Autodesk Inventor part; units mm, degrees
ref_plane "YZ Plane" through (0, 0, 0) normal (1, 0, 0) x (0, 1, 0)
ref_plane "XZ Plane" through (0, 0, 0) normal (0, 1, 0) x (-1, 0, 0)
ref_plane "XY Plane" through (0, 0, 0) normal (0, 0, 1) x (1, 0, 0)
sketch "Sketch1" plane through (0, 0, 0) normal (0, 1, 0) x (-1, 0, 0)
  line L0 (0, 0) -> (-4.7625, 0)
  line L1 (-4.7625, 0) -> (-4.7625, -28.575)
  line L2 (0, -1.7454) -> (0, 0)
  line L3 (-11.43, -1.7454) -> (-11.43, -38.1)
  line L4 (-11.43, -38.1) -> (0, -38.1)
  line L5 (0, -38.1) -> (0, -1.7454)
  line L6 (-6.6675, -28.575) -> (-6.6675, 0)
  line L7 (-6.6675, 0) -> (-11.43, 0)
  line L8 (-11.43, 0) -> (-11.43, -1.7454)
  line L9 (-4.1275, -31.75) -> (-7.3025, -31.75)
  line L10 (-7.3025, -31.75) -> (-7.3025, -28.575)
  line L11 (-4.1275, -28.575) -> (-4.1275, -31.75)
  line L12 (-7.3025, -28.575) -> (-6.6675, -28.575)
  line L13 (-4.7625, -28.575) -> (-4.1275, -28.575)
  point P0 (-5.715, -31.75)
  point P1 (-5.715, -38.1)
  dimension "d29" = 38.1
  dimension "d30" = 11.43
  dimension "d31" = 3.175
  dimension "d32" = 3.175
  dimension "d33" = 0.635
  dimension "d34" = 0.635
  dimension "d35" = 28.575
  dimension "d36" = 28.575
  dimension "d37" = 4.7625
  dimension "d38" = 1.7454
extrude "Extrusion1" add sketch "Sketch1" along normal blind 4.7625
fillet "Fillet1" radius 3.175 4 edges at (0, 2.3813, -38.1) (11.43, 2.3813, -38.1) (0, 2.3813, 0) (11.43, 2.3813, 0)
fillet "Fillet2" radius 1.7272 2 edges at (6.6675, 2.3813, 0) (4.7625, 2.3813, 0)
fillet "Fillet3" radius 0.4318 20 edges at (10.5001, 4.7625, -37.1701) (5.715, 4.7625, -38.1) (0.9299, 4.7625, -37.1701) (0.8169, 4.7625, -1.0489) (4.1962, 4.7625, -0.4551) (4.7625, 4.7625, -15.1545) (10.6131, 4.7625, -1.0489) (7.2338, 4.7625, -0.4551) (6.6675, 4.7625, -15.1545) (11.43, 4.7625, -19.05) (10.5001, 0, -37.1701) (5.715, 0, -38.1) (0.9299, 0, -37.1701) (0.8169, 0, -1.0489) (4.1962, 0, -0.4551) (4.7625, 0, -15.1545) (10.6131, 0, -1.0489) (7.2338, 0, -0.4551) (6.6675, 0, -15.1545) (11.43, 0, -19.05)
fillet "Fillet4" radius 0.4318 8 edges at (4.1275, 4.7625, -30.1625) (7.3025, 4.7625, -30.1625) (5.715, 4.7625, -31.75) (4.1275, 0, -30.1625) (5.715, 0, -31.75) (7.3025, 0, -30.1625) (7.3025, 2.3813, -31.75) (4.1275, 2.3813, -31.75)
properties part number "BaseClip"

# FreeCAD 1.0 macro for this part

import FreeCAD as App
import Part
import Sketcher

V = App.Vector
Q = App.Units.Quantity


def edges_at(feature, points):
    """Names of the edges that pass closest to the given points."""
    edges = feature.Shape.Edges
    near = lambda p: min(range(len(edges)), key=lambda i: edges[i].distToShape(Part.Vertex(*p))[0])
    return sorted({f"Edge{near(p) + 1}" for p in points})

doc = App.newDocument("Part")
body = doc.addObject("PartDesign::Body", "Body")

# Sketch on XZ plane
sketch1 = body.newObject("Sketcher::SketchObject", "Sketch")
sketch1.AttachmentSupport = (doc.getObject("XZ_Plane"), [""])
sketch1.MapMode = "FlatFace"
sketch1.addGeometry(Part.LineSegment(V(0, -38.1, 0), V(0, 0, 0)), False)
sketch1.addGeometry(Part.LineSegment(V(0, 0, 0), V(4.8, 0, 0)), False)
sketch1.addGeometry(Part.LineSegment(V(4.8, 0, 0), V(4.8, -28.6, 0)), False)
sketch1.addGeometry(Part.LineSegment(V(4.8, -28.6, 0), V(4.1, -28.6, 0)), False)
sketch1.addGeometry(Part.LineSegment(V(4.1, -28.6, 0), V(4.1, -31.8, 0)), False)
sketch1.addGeometry(Part.LineSegment(V(4.1, -31.8, 0), V(7.3, -31.8, 0)), False)
sketch1.addGeometry(Part.LineSegment(V(7.3, -31.8, 0), V(7.3, -28.6, 0)), False)
sketch1.addGeometry(Part.LineSegment(V(7.3, -28.6, 0), V(6.7, -28.6, 0)), False)
sketch1.addGeometry(Part.LineSegment(V(6.7, -28.6, 0), V(6.7, 0, 0)), False)
sketch1.addGeometry(Part.LineSegment(V(6.7, 0, 0), V(11.4, 0, 0)), False)
sketch1.addGeometry(Part.LineSegment(V(11.4, 0, 0), V(11.4, -38.1, 0)), False)
sketch1.addGeometry(Part.LineSegment(V(11.4, -38.1, 0), V(0, -38.1, 0)), False)
sketch1.addConstraint(Sketcher.Constraint("Coincident", 0, 2, 1, 1))
sketch1.addConstraint(Sketcher.Constraint("Coincident", 1, 2, 2, 1))
sketch1.addConstraint(Sketcher.Constraint("Coincident", 2, 2, 3, 1))
sketch1.addConstraint(Sketcher.Constraint("Coincident", 3, 2, 4, 1))
sketch1.addConstraint(Sketcher.Constraint("Coincident", 4, 2, 5, 1))
sketch1.addConstraint(Sketcher.Constraint("Coincident", 5, 2, 6, 1))
sketch1.addConstraint(Sketcher.Constraint("Coincident", 6, 2, 7, 1))
sketch1.addConstraint(Sketcher.Constraint("Coincident", 7, 2, 8, 1))
sketch1.addConstraint(Sketcher.Constraint("Coincident", 8, 2, 9, 1))
sketch1.addConstraint(Sketcher.Constraint("Coincident", 9, 2, 10, 1))
sketch1.addConstraint(Sketcher.Constraint("Coincident", 10, 2, 11, 1))
sketch1.addConstraint(Sketcher.Constraint("Coincident", 11, 2, 0, 1))
sketch1.addConstraint(Sketcher.Constraint("Vertical", 0))
sketch1.addConstraint(Sketcher.Constraint("Horizontal", 1))
sketch1.addConstraint(Sketcher.Constraint("Vertical", 2))
sketch1.addConstraint(Sketcher.Constraint("Horizontal", 3))
sketch1.addConstraint(Sketcher.Constraint("Vertical", 4))
sketch1.addConstraint(Sketcher.Constraint("Horizontal", 5))
sketch1.addConstraint(Sketcher.Constraint("Vertical", 6))
sketch1.addConstraint(Sketcher.Constraint("Horizontal", 7))
sketch1.addConstraint(Sketcher.Constraint("Vertical", 8))
sketch1.addConstraint(Sketcher.Constraint("Horizontal", 9))
sketch1.addConstraint(Sketcher.Constraint("Vertical", 10))
sketch1.addConstraint(Sketcher.Constraint("Horizontal", 11))
sketch1.addConstraint(Sketcher.Constraint("Coincident", 0, 2, -1, 1))
sketch1.addConstraint(Sketcher.Constraint("PointOnObject", 8, 2, -1))
sketch1.addConstraint(Sketcher.Constraint("Horizontal", 3, 2, 6, 2))
sketch1.addConstraint(Sketcher.Constraint("Equal", 3, 7))
sketch1.addConstraint(Sketcher.Constraint("Equal", 1, 9))
sketch1.addConstraint(Sketcher.Constraint("Equal", 5, 4))
sketch1.addConstraint(Sketcher.Constraint("DistanceY", 0, 1, 0, 2, Q("1.5 in")))
sketch1.addConstraint(Sketcher.Constraint("DistanceX", 11, 2, 11, 1, Q("0.45 in")))
sketch1.addConstraint(Sketcher.Constraint("DistanceX", 1, 1, 1, 2, Q("0.1875 in")))
sketch1.addConstraint(Sketcher.Constraint("DistanceX", 3, 2, 3, 1, Q("0.025 in")))
sketch1.addConstraint(Sketcher.Constraint("DistanceY", 2, 2, 2, 1, Q("1.125 in")))
pad1 = body.newObject("PartDesign::Pad", "Pad")
pad1.Profile = sketch1
pad1.Length = Q("0.1875 in")
pad1.Reversed = True
doc.recompute()

fillet = body.newObject("PartDesign::Fillet", "Fillet")
fillet.Base = (pad1, edges_at(pad1, [
    (0, 2.381, -38.1),
    (11.43, 2.381, -38.1),
    (0, 2.381, 0),
    (11.43, 2.381, 0),
]))
fillet.Radius = Q("0.125 in")
doc.recompute()

fillet2 = body.newObject("PartDesign::Fillet", "Fillet001")
fillet2.Base = (fillet, edges_at(fillet, [(6.668, 2.381, 0), (4.763, 2.381, 0)]))
fillet2.Radius = Q("0.068 in")
doc.recompute()

fillet3 = body.newObject("PartDesign::Fillet", "Fillet002")
fillet3.Base = (fillet2, edges_at(fillet2, [
    (10.5, 4.763, -37.17),
    (5.715, 4.763, -38.1),
    (0.93, 4.763, -37.17),
    (0.817, 4.763, -1.049),
    (4.196, 4.763, -0.455),
    (4.763, 4.763, -15.155),
    (10.613, 4.763, -1.049),
    (7.234, 4.763, -0.455),
    (6.668, 4.763, -15.155),
    (11.43, 4.763, -19.05),
    (10.5, 0, -37.17),
    (5.715, 0, -38.1),
    (0.93, 0, -37.17),
    (0.817, 0, -1.049),
    (4.196, 0, -0.455),
    (4.763, 0, -15.155),
    (10.613, 0, -1.049),
    (7.234, 0, -0.455),
    (6.668, 0, -15.155),
    (11.43, 0, -19.05),
]))
fillet3.Radius = Q("0.017 in")
doc.recompute()

fillet4 = body.newObject("PartDesign::Fillet", "Fillet003")
fillet4.Base = (fillet3, edges_at(fillet3, [
    (4.128, 4.763, -30.163),
    (7.303, 4.763, -30.163),
    (5.715, 4.763, -31.75),
    (4.128, 0, -30.163),
    (5.715, 0, -31.75),
    (7.303, 0, -30.163),
    (7.303, 2.381, -31.75),
    (4.128, 2.381, -31.75),
]))
fillet4.Radius = Q("0.017 in")

doc.recompute()
